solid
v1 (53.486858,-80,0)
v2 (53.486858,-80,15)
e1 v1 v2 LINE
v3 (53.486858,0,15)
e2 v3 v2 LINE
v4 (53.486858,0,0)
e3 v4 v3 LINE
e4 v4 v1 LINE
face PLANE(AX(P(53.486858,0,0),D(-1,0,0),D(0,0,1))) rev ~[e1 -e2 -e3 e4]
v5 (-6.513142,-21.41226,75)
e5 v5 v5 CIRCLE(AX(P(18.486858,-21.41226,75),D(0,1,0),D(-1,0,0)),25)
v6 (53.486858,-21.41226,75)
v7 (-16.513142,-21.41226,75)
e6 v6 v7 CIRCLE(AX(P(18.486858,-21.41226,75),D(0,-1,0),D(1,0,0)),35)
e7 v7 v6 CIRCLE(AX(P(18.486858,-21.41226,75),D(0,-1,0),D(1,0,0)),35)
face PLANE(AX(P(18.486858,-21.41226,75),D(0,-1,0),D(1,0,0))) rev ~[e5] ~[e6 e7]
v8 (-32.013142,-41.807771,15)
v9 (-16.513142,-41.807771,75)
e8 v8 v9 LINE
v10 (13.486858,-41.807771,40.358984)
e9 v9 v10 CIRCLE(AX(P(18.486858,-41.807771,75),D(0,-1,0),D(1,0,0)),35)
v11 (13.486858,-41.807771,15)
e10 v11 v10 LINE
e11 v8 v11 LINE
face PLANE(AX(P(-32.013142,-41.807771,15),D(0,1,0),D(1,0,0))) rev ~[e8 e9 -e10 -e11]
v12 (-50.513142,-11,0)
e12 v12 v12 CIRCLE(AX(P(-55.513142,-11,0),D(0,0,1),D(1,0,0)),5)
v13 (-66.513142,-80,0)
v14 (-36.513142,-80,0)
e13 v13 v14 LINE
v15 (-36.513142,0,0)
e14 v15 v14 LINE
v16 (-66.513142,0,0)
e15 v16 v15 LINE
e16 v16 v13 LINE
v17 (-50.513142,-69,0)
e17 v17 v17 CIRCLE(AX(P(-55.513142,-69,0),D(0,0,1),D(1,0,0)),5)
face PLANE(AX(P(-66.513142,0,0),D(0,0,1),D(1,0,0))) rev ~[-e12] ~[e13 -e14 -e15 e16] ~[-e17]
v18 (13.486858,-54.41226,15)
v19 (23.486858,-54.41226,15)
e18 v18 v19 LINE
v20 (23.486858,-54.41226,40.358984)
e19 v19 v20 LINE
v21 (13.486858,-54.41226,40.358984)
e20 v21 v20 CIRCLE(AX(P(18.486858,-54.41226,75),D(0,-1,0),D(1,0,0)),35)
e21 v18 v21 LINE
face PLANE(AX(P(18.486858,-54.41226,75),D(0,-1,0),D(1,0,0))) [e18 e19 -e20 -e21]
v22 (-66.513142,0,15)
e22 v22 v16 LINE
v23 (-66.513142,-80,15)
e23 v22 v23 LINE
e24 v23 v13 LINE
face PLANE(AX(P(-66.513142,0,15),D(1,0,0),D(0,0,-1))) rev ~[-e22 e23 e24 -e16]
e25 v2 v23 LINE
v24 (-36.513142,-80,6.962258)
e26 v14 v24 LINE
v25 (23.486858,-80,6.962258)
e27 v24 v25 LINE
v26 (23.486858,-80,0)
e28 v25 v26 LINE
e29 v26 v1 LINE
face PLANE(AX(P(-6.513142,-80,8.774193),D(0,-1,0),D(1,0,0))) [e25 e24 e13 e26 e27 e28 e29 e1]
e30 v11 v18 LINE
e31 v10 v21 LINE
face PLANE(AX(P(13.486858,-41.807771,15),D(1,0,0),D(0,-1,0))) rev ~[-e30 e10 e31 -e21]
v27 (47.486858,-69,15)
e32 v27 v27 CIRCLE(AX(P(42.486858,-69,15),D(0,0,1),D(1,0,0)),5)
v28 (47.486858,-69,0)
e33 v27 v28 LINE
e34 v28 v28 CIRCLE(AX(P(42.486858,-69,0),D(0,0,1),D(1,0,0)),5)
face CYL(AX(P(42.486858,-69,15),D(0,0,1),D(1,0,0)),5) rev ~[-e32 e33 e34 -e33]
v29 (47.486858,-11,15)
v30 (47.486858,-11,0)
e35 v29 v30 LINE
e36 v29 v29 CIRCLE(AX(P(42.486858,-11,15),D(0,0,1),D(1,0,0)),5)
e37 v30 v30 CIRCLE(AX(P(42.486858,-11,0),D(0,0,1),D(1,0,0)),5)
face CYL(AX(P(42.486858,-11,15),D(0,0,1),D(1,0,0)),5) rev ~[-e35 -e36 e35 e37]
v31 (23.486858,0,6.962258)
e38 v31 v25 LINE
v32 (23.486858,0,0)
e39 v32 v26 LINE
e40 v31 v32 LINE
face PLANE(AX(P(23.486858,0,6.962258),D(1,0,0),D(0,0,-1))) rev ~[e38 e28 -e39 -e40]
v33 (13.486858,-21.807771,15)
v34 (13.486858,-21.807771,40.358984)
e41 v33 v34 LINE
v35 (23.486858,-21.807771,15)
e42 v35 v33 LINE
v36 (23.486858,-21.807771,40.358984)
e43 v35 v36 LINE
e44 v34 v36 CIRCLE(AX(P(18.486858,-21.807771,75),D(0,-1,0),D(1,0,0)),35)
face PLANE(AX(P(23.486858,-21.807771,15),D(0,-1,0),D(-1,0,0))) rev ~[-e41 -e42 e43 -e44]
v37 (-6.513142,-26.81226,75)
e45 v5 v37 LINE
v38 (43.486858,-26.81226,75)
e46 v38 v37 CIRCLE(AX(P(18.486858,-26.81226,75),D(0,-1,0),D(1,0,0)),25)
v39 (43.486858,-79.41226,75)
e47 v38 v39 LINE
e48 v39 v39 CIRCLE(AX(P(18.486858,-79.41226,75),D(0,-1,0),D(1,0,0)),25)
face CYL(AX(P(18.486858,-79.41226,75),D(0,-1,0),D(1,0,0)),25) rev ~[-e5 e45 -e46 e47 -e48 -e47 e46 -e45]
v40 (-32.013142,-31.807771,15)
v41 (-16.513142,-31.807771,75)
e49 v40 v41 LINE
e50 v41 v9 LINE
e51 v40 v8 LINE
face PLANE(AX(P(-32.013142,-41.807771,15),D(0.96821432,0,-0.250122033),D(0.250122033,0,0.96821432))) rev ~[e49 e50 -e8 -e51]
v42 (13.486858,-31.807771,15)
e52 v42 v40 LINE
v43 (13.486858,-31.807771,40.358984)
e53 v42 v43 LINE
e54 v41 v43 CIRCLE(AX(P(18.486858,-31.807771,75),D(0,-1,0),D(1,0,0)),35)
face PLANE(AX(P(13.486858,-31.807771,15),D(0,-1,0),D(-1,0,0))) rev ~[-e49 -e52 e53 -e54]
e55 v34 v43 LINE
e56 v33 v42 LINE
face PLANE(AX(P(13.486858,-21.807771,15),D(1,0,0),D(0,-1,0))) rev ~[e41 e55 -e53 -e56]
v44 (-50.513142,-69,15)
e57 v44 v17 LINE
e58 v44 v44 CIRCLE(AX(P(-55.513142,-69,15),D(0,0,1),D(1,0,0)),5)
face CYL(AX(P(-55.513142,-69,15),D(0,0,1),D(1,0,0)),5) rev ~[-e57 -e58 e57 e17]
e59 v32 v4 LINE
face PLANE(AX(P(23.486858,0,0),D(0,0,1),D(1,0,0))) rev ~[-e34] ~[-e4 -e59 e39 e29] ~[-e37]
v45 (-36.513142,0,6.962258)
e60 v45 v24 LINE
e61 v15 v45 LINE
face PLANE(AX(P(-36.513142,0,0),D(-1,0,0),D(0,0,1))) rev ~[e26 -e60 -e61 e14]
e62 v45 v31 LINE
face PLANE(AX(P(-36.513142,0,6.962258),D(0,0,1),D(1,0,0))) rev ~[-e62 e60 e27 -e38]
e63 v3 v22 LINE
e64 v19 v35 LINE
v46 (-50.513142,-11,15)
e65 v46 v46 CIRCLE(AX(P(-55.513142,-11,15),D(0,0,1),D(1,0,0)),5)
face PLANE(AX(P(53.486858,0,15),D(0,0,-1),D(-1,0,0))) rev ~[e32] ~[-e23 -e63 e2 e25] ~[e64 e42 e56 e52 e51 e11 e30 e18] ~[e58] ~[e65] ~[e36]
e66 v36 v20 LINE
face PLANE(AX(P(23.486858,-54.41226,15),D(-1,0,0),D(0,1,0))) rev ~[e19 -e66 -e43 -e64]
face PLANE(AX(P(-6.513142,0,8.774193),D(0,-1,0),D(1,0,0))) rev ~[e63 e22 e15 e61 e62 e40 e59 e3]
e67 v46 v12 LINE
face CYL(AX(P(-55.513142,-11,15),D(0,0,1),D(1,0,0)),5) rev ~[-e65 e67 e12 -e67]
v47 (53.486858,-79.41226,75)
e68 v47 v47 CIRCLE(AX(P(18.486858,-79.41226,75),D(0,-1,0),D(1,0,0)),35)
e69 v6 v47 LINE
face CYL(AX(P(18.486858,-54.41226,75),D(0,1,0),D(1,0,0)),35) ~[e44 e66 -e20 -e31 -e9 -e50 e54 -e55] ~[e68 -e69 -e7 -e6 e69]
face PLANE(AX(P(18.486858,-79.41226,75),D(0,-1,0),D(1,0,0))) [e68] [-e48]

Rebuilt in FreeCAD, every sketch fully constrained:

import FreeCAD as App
import Part
import Sketcher
from FreeCAD import Vector
Q = App.Units.Quantity


def add_polygon(sketch, points):
    """Adds a closed chain of lines whose ends are joined by coincident constraints."""
    first, n = sketch.GeometryCount, len(points)
    for a, b in zip(points, points[1:] + points[:1]):
        sketch.addGeometry(Part.LineSegment(App.Vector(*a, 0), App.Vector(*b, 0)), False)
    for i in range(n):
        sketch.addConstraint(Sketcher.Constraint("Coincident", first + i, 2, first + (i + 1) % n, 1))

doc = App.newDocument("Part")
body = doc.addObject("PartDesign::Body", "Body")

# Sketch on XZ plane
sketch1 = doc.addObject("Sketcher::SketchObject", "Sketch")
body.addObject(sketch1)
sketch1.AttachmentSupport = (doc.XZ_Plane, [""])
sketch1.MapMode = "FlatFace"
add_polygon(sketch1, [(-67, 0), (-37, 0), (-37, 7), (23, 7), (23, 0), (53, 0), (53, 15), (-67, 15)])  # lines 0-7
sketch1.addConstraint([
    Sketcher.Constraint("Horizontal", 0),
    Sketcher.Constraint("Vertical", 1),
    Sketcher.Constraint("Horizontal", 2),
    Sketcher.Constraint("Vertical", 3),
    Sketcher.Constraint("Horizontal", 4),
    Sketcher.Constraint("Vertical", 5),
    Sketcher.Constraint("Horizontal", 6),
    Sketcher.Constraint("Vertical", 7),
    Sketcher.Constraint("PointOnObject", 0, 2, -1),
    Sketcher.Constraint("PointOnObject", 3, 2, -1),
    Sketcher.Constraint("Equal", 0, 4),
    Sketcher.Constraint("DistanceX", 0, 1, 0, 2, Q("30 mm")),
    Sketcher.Constraint("DistanceX", 2, 1, 2, 2, Q("60 mm")),
    Sketcher.Constraint("DistanceY", 5, 1, 5, 2, Q("15 mm")),
    Sketcher.Constraint("DistanceY", 1, 1, 1, 2, Q("6.962258 mm")),
    Sketcher.Constraint("DistanceX", -1, 1, 2, 2, Q("23.486858 mm")),
])
pad1 = doc.addObject("PartDesign::Pad", "Pad")
body.addObject(pad1)
pad1.Profile = sketch1
pad1.Length = 80

# Sketch on XY plane
sketch2 = doc.addObject("Sketcher::SketchObject", "Sketch001")
body.addObject(sketch2)
sketch2.AttachmentSupport = (doc.XY_Plane, [""])
sketch2.MapMode = "FlatFace"
sketch2.AttachmentOffset = App.Placement(Vector(0, 0, 15), App.Rotation())
sketch2.addGeometry([
    Part.Circle(Vector(42, -11, 0), Vector(0, 0, 1), 5),
    Part.Circle(Vector(42, -69, 0), Vector(0, 0, 1), 5),
    Part.Circle(Vector(-56, -69, 0), Vector(0, 0, 1), 5),
    Part.Circle(Vector(-56, -11, 0), Vector(0, 0, 1), 5),
], False)
sketch2.addConstraint([
    Sketcher.Constraint("Equal", 0, 1),
    Sketcher.Constraint("Equal", 1, 2),
    Sketcher.Constraint("Equal", 2, 3),
    Sketcher.Constraint("Horizontal", 1, 3, 2, 3),
    Sketcher.Constraint("Horizontal", 0, 3, 3, 3),
    Sketcher.Constraint("Vertical", 0, 3, 1, 3),
    Sketcher.Constraint("Vertical", 2, 3, 3, 3),
    Sketcher.Constraint("Diameter", 0, Q("10 mm")),
    Sketcher.Constraint("DistanceY", 0, 3, -1, 1, Q("11 mm")),
    Sketcher.Constraint("DistanceY", 1, 3, -1, 1, Q("69 mm")),
    Sketcher.Constraint("DistanceX", 2, 3, 1, 3, Q("98 mm")),
    Sketcher.Constraint("DistanceX", -1, 1, 0, 3, Q("42.486858 mm")),
])
pocket1 = doc.addObject("PartDesign::Pocket", "Pocket")
body.addObject(pocket1)
pocket1.Profile = sketch2
pocket1.Length = 25

# Sketch on XY plane
sketch3 = doc.addObject("Sketcher::SketchObject", "Sketch002")
body.addObject(sketch3)
sketch3.AttachmentSupport = (doc.XY_Plane, [""])
sketch3.MapMode = "FlatFace"
sketch3.AttachmentOffset = App.Placement(Vector(0, 0, 15), App.Rotation())
add_polygon(sketch3, [(23, -54), (23, -22), (13, -22), (13, -32), (-32, -32), (-32, -42), (13, -42), (13, -54)])  # lines 0-7
sketch3.addConstraint([
    Sketcher.Constraint("Vertical", 0),
    Sketcher.Constraint("Horizontal", 1),
    Sketcher.Constraint("Vertical", 2),
    Sketcher.Constraint("Horizontal", 3),
    Sketcher.Constraint("Vertical", 4),
    Sketcher.Constraint("Horizontal", 5),
    Sketcher.Constraint("Vertical", 6),
    Sketcher.Constraint("Horizontal", 7),
    Sketcher.Constraint("Vertical", 2, 2, 5, 2),
    Sketcher.Constraint("Equal", 7, 2),
    Sketcher.Constraint("Equal", 2, 4),
    Sketcher.Constraint("DistanceX", 1, 2, 1, 1, Q("10 mm")),
    Sketcher.Constraint("DistanceX", 3, 2, 3, 1, Q("45.5 mm")),
    Sketcher.Constraint("DistanceY", 0, 1, 0, 2, Q("32.604489 mm")),
    Sketcher.Constraint("DistanceX", -1, 1, 0, 2, Q("23.486858 mm")),
    Sketcher.Constraint("DistanceY", 0, 2, -1, 1, Q("21.807771 mm")),
])
pad2 = doc.addObject("PartDesign::Pad", "Pad001")
body.addObject(pad2)
pad2.Profile = sketch3
pad2.Length = 60

# Sketch on XZ plane
sketch4 = doc.addObject("Sketcher::SketchObject", "Sketch003")
body.addObject(sketch4)
sketch4.AttachmentSupport = (doc.XZ_Plane, [""])
sketch4.MapMode = "FlatFace"
sketch4.AttachmentOffset = App.Placement(Vector(0, 0, 54.41226), App.Rotation())
sketch4.addGeometry(Part.Circle(Vector(18, 75, 0), Vector(0, 0, 1), 35), False)
sketch4.addConstraint([
    Sketcher.Constraint("Diameter", 0, Q("70 mm")),
    Sketcher.Constraint("DistanceY", -1, 1, 0, 3, Q("75 mm")),
    Sketcher.Constraint("DistanceX", -1, 1, 0, 3, Q("18.486858 mm")),
])
pad3 = doc.addObject("PartDesign::Pad", "Pad002")
body.addObject(pad3)
pad3.Profile = sketch4
pad3.Length = 33
pad3.Reversed = True

# Sketch on XZ plane
sketch5 = doc.addObject("Sketcher::SketchObject", "Sketch004")
body.addObject(sketch5)
sketch5.AttachmentSupport = (doc.XZ_Plane, [""])
sketch5.MapMode = "FlatFace"
sketch5.AttachmentOffset = App.Placement(Vector(0, 0, 54.41226), App.Rotation())
sketch5.addGeometry(Part.Circle(Vector(18, 75, 0), Vector(0, 0, 1), 35), False)
sketch5.addConstraint([
    Sketcher.Constraint("Diameter", 0, Q("70 mm")),
    Sketcher.Constraint("DistanceY", -1, 1, 0, 3, Q("75 mm")),
    Sketcher.Constraint("DistanceX", -1, 1, 0, 3, Q("18.486858 mm")),
])
pad4 = doc.addObject("PartDesign::Pad", "Pad003")
body.addObject(pad4)
pad4.Profile = sketch5
pad4.Length = 25

# Sketch on XZ plane
sketch6 = doc.addObject("Sketcher::SketchObject", "Sketch005")
body.addObject(sketch6)
sketch6.AttachmentSupport = (doc.XZ_Plane, [""])
sketch6.MapMode = "FlatFace"
sketch6.AttachmentOffset = App.Placement(Vector(0, 0, 79.41226), App.Rotation())
sketch6.addGeometry(Part.Circle(Vector(18, 75, 0), Vector(0, 0, 1), 25), False)
sketch6.addConstraint([
    Sketcher.Constraint("Diameter", 0, Q("50 mm")),
    Sketcher.Constraint("DistanceY", -1, 1, 0, 3, Q("75 mm")),
    Sketcher.Constraint("DistanceX", -1, 1, 0, 3, Q("18.486858 mm")),
])
pocket2 = doc.addObject("PartDesign::Pocket", "Pocket001")
body.addObject(pocket2)
pocket2.Profile = sketch6
pocket2.Length = 52.6

# Sketch on XZ plane
sketch7 = doc.addObject("Sketcher::SketchObject", "Sketch006")
body.addObject(sketch7)
sketch7.AttachmentSupport = (doc.XZ_Plane, [""])
sketch7.MapMode = "FlatFace"
sketch7.AttachmentOffset = App.Placement(Vector(0, 0, 21.41226), App.Rotation())
sketch7.addGeometry(Part.Circle(Vector(18, 75, 0), Vector(0, 0, 1), 25), False)
sketch7.addConstraint([
    Sketcher.Constraint("Diameter", 0, Q("50 mm")),
    Sketcher.Constraint("DistanceY", -1, 1, 0, 3, Q("75 mm")),
    Sketcher.Constraint("DistanceX", -1, 1, 0, 3, Q("18.486858 mm")),
])
pocket3 = doc.addObject("PartDesign::Pocket", "Pocket002")
body.addObject(pocket3)
pocket3.Profile = sketch7
pocket3.Length = 52.6
pocket3.Reversed = True

# Sketch on XZ plane
sketch8 = doc.addObject("Sketcher::SketchObject", "Sketch007")
body.addObject(sketch8)
sketch8.AttachmentSupport = (doc.XZ_Plane, [""])
sketch8.MapMode = "FlatFace"
sketch8.AttachmentOffset = App.Placement(Vector(0, 0, 41.807771), App.Rotation())
add_polygon(sketch8, [(-32, 15), (-17, 75), (-32, 75)])  # lines 0-2
sketch8.addConstraint([
    Sketcher.Constraint("Horizontal", 1),
    Sketcher.Constraint("Vertical", 2),
    Sketcher.Constraint("DistanceY", 2, 2, 2, 1, Q("60 mm")),
    Sketcher.Constraint("DistanceX", 1, 2, 1, 1, Q("15.5 mm")),
    Sketcher.Constraint("DistanceY", -1, 1, 0, 2, Q("75 mm")),
    Sketcher.Constraint("DistanceX", 0, 2, -1, 1, Q("16.513142 mm")),
])
pocket4 = doc.addObject("PartDesign::Pocket", "Pocket003")
body.addObject(pocket4)
pocket4.Profile = sketch8
pocket4.Length = 25

doc.recompute()
